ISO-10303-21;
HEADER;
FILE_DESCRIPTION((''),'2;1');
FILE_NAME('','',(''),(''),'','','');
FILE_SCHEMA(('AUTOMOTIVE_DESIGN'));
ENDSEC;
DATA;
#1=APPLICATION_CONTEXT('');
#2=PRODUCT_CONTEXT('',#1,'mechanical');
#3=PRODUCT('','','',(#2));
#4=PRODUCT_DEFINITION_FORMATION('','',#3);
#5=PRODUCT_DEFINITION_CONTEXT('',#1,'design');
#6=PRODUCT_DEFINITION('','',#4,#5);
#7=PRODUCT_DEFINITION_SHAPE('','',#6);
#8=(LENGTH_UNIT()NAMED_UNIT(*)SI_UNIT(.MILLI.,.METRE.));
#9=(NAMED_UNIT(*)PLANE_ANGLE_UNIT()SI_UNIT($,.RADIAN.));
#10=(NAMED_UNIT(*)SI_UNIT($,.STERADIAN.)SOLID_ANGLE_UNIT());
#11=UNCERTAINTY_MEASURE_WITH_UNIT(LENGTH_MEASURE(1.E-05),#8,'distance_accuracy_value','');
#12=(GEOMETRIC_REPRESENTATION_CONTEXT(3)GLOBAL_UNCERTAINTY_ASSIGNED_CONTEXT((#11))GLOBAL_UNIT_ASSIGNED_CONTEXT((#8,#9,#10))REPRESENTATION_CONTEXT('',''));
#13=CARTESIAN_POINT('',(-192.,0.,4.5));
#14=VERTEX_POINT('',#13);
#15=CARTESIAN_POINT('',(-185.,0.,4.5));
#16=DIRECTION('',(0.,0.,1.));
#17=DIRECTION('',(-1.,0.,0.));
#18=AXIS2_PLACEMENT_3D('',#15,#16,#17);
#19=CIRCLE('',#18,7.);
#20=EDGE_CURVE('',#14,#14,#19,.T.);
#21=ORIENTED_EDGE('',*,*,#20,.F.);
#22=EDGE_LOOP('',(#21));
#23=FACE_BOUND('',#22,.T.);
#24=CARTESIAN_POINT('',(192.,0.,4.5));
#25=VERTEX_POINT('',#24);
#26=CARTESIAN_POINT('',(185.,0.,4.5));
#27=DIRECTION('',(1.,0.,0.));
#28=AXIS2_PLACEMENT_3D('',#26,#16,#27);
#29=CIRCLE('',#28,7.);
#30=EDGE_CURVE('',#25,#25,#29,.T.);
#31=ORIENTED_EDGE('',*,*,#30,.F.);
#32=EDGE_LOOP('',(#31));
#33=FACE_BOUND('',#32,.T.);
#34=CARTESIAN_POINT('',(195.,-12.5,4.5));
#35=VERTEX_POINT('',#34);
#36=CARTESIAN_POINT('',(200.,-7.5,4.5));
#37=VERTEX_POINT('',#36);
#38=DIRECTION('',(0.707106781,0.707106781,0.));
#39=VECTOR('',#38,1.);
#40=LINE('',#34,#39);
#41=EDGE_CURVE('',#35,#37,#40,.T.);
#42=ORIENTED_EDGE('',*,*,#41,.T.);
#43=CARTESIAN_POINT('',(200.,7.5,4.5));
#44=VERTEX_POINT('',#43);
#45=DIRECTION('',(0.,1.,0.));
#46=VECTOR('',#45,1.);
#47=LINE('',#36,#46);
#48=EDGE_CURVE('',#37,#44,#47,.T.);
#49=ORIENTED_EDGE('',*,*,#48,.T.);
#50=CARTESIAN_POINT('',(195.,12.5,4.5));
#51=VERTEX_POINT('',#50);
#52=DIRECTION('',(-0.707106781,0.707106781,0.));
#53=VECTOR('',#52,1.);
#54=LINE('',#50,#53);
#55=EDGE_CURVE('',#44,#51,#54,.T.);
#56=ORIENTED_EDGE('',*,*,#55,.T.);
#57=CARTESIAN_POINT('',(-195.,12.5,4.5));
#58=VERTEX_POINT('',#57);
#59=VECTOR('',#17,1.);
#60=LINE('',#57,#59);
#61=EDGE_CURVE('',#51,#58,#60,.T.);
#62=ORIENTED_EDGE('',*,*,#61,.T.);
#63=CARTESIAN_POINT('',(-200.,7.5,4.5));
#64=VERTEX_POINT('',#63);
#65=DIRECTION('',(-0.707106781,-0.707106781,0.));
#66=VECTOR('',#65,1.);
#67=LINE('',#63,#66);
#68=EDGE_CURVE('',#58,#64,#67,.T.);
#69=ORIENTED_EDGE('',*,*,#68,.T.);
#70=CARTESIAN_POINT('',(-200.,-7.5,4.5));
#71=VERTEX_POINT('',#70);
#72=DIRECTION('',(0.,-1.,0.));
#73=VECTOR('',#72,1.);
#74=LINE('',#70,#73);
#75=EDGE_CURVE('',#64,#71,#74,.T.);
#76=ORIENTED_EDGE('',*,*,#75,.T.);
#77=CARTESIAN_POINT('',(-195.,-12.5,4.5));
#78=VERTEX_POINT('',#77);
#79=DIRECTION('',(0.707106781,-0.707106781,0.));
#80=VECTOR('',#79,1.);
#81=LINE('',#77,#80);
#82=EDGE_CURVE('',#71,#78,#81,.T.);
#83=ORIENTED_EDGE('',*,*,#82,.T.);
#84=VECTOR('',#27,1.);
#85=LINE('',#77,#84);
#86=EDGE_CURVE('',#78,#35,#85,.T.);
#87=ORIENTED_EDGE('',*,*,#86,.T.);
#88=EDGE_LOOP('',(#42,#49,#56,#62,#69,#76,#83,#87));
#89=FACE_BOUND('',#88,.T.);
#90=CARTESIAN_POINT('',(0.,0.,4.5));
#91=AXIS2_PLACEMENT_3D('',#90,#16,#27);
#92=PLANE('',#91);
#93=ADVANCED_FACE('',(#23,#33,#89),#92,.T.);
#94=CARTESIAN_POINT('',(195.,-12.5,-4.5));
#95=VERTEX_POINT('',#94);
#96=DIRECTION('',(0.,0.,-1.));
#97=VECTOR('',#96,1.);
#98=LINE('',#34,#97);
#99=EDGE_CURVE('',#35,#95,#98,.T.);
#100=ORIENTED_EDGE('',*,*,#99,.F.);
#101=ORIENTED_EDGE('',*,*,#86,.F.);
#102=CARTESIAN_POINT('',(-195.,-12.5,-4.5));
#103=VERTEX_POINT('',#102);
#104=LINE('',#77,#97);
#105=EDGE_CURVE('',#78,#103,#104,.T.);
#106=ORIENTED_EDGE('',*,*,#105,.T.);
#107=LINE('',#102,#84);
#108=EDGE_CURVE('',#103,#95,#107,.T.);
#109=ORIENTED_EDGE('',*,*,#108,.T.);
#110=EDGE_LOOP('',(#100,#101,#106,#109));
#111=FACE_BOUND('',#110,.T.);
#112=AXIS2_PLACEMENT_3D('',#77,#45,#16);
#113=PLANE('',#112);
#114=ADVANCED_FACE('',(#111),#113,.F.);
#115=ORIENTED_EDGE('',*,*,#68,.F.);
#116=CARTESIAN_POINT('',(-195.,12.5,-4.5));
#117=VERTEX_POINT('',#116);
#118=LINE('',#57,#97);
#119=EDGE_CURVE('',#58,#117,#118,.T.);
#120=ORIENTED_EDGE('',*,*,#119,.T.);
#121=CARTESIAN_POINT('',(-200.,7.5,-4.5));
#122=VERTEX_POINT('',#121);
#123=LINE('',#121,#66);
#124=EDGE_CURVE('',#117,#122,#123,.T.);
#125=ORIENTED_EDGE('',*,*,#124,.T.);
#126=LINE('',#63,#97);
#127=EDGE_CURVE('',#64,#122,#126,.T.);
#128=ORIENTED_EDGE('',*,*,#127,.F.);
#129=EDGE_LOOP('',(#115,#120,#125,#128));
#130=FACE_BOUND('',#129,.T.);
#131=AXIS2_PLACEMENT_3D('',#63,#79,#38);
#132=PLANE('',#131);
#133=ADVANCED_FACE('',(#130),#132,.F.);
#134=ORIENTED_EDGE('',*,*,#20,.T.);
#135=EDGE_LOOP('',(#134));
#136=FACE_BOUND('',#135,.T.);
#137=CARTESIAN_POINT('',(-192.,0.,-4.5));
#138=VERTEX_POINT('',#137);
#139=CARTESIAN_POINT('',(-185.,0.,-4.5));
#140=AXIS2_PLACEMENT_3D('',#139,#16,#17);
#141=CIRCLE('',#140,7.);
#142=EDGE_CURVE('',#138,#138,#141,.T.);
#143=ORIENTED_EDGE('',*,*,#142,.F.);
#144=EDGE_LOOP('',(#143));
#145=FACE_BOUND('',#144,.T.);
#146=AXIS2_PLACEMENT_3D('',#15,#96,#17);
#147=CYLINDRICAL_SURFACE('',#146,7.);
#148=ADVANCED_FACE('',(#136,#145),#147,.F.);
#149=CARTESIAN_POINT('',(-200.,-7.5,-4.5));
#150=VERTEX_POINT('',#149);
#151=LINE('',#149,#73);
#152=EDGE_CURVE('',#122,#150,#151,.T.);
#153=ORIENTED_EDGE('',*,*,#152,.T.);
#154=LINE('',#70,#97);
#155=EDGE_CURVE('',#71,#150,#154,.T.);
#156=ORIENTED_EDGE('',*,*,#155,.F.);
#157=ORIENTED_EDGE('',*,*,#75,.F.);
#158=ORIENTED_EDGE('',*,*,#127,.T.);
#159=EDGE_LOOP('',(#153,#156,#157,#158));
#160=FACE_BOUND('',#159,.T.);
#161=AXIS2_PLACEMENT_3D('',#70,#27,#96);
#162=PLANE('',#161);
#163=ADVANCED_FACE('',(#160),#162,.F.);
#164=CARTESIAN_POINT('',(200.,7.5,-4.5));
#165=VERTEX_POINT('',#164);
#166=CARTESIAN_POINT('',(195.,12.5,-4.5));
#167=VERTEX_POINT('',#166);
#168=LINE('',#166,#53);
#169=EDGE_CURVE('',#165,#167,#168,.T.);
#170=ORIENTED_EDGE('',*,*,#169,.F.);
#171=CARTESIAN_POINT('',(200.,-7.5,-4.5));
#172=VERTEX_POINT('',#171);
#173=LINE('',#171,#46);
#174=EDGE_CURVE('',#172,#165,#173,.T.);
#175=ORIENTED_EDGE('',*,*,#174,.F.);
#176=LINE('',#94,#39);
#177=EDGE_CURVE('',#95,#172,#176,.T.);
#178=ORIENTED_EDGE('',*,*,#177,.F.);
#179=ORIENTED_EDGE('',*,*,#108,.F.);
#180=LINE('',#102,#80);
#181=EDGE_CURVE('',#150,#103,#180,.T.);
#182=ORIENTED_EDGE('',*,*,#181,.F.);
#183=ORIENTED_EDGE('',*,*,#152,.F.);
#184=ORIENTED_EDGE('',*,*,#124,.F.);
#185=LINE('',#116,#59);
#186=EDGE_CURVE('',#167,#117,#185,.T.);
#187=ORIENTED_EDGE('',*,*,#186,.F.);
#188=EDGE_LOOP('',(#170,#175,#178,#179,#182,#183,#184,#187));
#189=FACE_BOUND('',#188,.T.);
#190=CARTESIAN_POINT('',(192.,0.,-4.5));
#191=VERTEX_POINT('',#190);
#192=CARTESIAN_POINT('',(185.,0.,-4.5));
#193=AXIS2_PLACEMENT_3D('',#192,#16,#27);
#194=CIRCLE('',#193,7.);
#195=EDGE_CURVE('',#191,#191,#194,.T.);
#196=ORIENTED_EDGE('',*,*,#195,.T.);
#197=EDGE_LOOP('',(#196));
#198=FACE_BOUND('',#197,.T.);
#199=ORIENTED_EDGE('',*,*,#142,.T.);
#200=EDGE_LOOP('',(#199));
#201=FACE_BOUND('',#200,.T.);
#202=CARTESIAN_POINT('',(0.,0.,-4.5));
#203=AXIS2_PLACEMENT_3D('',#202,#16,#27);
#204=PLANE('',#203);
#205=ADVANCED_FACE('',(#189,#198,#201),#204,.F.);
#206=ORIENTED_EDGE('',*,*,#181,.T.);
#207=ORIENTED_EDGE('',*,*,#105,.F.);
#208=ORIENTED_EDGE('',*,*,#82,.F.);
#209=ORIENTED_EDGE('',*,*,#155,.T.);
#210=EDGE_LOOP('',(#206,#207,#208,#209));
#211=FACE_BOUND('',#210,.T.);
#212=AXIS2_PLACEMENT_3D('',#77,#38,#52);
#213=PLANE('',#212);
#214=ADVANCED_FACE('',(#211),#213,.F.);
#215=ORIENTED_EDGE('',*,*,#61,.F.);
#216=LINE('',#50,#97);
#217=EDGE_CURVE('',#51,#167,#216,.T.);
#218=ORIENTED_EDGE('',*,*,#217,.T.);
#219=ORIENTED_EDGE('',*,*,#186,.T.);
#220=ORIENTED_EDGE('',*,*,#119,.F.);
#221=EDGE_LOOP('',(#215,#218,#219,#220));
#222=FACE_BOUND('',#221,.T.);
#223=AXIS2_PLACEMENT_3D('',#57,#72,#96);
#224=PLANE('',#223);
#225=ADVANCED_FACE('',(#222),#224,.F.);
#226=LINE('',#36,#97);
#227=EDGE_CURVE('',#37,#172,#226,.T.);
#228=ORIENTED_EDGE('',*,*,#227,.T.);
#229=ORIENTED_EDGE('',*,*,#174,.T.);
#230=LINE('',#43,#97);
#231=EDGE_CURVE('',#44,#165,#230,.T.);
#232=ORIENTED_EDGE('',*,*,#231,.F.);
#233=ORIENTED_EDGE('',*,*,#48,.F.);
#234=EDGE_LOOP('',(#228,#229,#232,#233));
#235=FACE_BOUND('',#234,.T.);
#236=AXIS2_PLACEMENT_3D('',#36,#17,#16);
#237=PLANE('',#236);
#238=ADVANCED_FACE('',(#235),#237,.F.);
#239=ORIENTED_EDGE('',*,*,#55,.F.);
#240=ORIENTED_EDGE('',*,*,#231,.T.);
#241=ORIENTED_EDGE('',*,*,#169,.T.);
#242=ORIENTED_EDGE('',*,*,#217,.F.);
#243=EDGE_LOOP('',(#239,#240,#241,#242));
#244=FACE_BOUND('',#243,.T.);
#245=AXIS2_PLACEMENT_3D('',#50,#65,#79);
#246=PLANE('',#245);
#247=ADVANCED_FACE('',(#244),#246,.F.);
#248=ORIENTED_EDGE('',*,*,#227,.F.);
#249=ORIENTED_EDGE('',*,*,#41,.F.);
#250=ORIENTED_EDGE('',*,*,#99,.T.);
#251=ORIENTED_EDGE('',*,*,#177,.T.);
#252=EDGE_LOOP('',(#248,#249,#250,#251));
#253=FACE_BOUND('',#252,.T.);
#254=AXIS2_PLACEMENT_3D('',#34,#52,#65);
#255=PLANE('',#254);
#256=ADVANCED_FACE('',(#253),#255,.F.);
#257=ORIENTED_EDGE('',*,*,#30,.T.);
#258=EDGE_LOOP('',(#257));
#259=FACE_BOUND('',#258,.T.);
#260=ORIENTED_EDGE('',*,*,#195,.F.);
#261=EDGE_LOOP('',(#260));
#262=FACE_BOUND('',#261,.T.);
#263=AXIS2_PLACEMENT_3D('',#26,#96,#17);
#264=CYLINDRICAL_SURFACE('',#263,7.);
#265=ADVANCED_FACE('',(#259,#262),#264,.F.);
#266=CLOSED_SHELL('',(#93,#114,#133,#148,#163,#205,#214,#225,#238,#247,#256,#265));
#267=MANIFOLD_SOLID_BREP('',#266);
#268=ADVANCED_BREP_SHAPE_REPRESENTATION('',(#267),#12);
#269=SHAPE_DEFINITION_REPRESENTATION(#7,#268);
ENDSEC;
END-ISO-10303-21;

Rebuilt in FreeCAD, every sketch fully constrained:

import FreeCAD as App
import Part
import Sketcher
from FreeCAD import Vector
Q = App.Units.Quantity

doc = App.newDocument("Part")
params = doc.addObject("Spreadsheet::Sheet", "Params")
for row, (alias, value) in enumerate([
    ("sketch1_diameter", "14 mm"),
    ("sketch1_width", "390 mm"),
    ("sketch1_height", "15 mm"),
    ("pad1_length", "9 mm"),
], start=1):
    params.set(f"A{row}", alias)
    params.set(f"B{row}", "=" + value)
    params.setAlias(f"B{row}", alias)

body = doc.addObject("PartDesign::Body", "Body")

# Sketch on XY plane
sketch1 = body.newObject("Sketcher::SketchObject", "Sketch")
sketch1.AttachmentSupport = (doc.getObject("XY_Plane"), [""])
sketch1.MapMode = "FlatFace"
sketch1.addGeometry(Part.LineSegment(Vector(200, 8, 0), Vector(195, 12, 0)), False)
sketch1.addGeometry(Part.LineSegment(Vector(195, 12, 0), Vector(-195, 12, 0)), False)
sketch1.addGeometry(Part.LineSegment(Vector(-195, 12, 0), Vector(-200, 8, 0)), False)
sketch1.addGeometry(Part.LineSegment(Vector(-200, 8, 0), Vector(-200, -8, 0)), False)
sketch1.addGeometry(Part.LineSegment(Vector(-200, -8, 0), Vector(-195, -12, 0)), False)
sketch1.addGeometry(Part.LineSegment(Vector(-195, -12, 0), Vector(195, -12, 0)), False)
sketch1.addGeometry(Part.LineSegment(Vector(195, -12, 0), Vector(200, -8, 0)), False)
sketch1.addGeometry(Part.LineSegment(Vector(200, -8, 0), Vector(200, 8, 0)), False)
sketch1.addGeometry(Part.Circle(Vector(185, 0, 0), Vector(0, 0, 1), 7), False)
sketch1.addGeometry(Part.Circle(Vector(-185, 0, 0), Vector(0, 0, 1), 7), False)
sketch1.addConstraint(Sketcher.Constraint("Coincident", 0, 2, 1, 1))
sketch1.addConstraint(Sketcher.Constraint("Coincident", 1, 2, 2, 1))
sketch1.addConstraint(Sketcher.Constraint("Coincident", 2, 2, 3, 1))
sketch1.addConstraint(Sketcher.Constraint("Coincident", 3, 2, 4, 1))
sketch1.addConstraint(Sketcher.Constraint("Coincident", 4, 2, 5, 1))
sketch1.addConstraint(Sketcher.Constraint("Coincident", 5, 2, 6, 1))
sketch1.addConstraint(Sketcher.Constraint("Coincident", 6, 2, 7, 1))
sketch1.addConstraint(Sketcher.Constraint("Coincident", 7, 2, 0, 1))
sketch1.addConstraint(Sketcher.Constraint("Horizontal", 1))
sketch1.addConstraint(Sketcher.Constraint("Vertical", 3))
sketch1.addConstraint(Sketcher.Constraint("Horizontal", 5))
sketch1.addConstraint(Sketcher.Constraint("Vertical", 7))
sketch1.addConstraint(Sketcher.Constraint("Equal", 8, 9))
sketch1.addConstraint(Sketcher.Constraint("Symmetric", 8, 3, 9, 3, -1, 1))
sketch1.addConstraint(Sketcher.Constraint("Symmetric", 0, 2, 4, 2, -1, 1))
sketch1.addConstraint(Sketcher.Constraint("Symmetric", 2, 2, 6, 2, -1, 1))
sketch1.addConstraint(Sketcher.Constraint("PointOnObject", 8, 3, -1))
sketch1.addConstraint(Sketcher.Constraint("Perpendicular", 0, 2))
sketch1.addConstraint(Sketcher.Constraint("Perpendicular", 2, 4))
sketch1.addConstraint(Sketcher.Constraint("Perpendicular", 4, 6))
sketch1.addConstraint(Sketcher.Constraint("Horizontal", 3, 2, 6, 2))
sketch1.addConstraint(Sketcher.Constraint("Vertical", 1, 2, 4, 2))
sketch1.addConstraint(Sketcher.Constraint("Diameter", 8, Q("14 mm")))
sketch1.addConstraint(Sketcher.Constraint("DistanceX", 1, 2, 1, 1, Q("390 mm")))
sketch1.addConstraint(Sketcher.Constraint("DistanceY", 3, 2, 3, 1, Q("15 mm")))
sketch1.addConstraint(Sketcher.Constraint("DistanceX", -1, 1, 8, 3, Q("185 mm")))
sketch1.addConstraint(Sketcher.Constraint("DistanceX", 2, 2, -1, 1, Q("200 mm")))
sketch1.setExpression("Constraints[22]", "Params.sketch1_diameter")
sketch1.setExpression("Constraints[23]", "Params.sketch1_width")
sketch1.setExpression("Constraints[24]", "Params.sketch1_height")
pad1 = body.newObject("PartDesign::Pad", "Pad")
pad1.Profile = sketch1
pad1.setExpression("Length", "Params.pad1_length")
pad1.Midplane = True

doc.recompute()
